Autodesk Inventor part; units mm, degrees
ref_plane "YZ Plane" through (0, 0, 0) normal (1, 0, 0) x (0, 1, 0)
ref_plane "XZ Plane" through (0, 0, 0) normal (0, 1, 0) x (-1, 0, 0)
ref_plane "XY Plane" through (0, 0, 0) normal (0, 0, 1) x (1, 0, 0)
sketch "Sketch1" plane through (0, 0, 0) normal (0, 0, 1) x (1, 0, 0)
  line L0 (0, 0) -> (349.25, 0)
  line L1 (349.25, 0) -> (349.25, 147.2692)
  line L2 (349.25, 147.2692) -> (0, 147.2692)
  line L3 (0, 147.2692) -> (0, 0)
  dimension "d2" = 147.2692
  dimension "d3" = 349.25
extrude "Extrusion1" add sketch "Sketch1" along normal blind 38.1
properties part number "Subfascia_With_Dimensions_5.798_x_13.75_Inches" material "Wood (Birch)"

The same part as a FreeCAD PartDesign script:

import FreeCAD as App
import Part
import Sketcher
from FreeCAD import Vector
Q = App.Units.Quantity


def add_polygon(sketch, points):
    """Adds a closed chain of lines whose ends are joined by coincident constraints."""
    first, n = sketch.GeometryCount, len(points)
    for a, b in zip(points, points[1:] + points[:1]):
        sketch.addGeometry(Part.LineSegment(App.Vector(*a, 0), App.Vector(*b, 0)), False)
    for i in range(n):
        sketch.addConstraint(Sketcher.Constraint("Coincident", first + i, 2, first + (i + 1) % n, 1))

doc = App.newDocument("Part")
params = doc.addObject("Spreadsheet::Sheet", "Params")
for row, (alias, value) in enumerate([
    ("sketch1_width", "13.75 in"),
    ("sketch1_height", "5.798 in"),
    ("pad1_length", "1.5 in"),
], start=1):
    params.set(f"A{row}", alias)
    params.set(f"B{row}", "=" + value)
    params.setAlias(f"B{row}", alias)

body = doc.addObject("PartDesign::Body", "Body")

sketch1 = body.newObject("Sketcher::SketchObject", "Sketch")
sketch1.AttachmentSupport = (doc.getObject("XY_Plane"), [""])
sketch1.MapMode = "FlatFace"
add_polygon(sketch1, [(0, 147), (0, 0), (349, 0), (349, 147)])
sketch1.addConstraint(Sketcher.Constraint("Vertical", 0))
sketch1.addConstraint(Sketcher.Constraint("Horizontal", 1))
sketch1.addConstraint(Sketcher.Constraint("Vertical", 2))
sketch1.addConstraint(Sketcher.Constraint("Horizontal", 3))
sketch1.addConstraint(Sketcher.Constraint("Coincident", 0, 2, -1, 1))
sketch1.addConstraint(Sketcher.Constraint("DistanceX", 1, 1, 1, 2, Q("13.75 in")))
sketch1.addConstraint(Sketcher.Constraint("DistanceY", 0, 2, 0, 1, Q("5.798 in")))
sketch1.setExpression("Constraints[9]", "Params.sketch1_width")
sketch1.setExpression("Constraints[10]", "Params.sketch1_height")
pad1 = body.newObject("PartDesign::Pad", "Pad")
pad1.Profile = sketch1
pad1.setExpression("Length", "Params.pad1_length")

doc.recompute()
